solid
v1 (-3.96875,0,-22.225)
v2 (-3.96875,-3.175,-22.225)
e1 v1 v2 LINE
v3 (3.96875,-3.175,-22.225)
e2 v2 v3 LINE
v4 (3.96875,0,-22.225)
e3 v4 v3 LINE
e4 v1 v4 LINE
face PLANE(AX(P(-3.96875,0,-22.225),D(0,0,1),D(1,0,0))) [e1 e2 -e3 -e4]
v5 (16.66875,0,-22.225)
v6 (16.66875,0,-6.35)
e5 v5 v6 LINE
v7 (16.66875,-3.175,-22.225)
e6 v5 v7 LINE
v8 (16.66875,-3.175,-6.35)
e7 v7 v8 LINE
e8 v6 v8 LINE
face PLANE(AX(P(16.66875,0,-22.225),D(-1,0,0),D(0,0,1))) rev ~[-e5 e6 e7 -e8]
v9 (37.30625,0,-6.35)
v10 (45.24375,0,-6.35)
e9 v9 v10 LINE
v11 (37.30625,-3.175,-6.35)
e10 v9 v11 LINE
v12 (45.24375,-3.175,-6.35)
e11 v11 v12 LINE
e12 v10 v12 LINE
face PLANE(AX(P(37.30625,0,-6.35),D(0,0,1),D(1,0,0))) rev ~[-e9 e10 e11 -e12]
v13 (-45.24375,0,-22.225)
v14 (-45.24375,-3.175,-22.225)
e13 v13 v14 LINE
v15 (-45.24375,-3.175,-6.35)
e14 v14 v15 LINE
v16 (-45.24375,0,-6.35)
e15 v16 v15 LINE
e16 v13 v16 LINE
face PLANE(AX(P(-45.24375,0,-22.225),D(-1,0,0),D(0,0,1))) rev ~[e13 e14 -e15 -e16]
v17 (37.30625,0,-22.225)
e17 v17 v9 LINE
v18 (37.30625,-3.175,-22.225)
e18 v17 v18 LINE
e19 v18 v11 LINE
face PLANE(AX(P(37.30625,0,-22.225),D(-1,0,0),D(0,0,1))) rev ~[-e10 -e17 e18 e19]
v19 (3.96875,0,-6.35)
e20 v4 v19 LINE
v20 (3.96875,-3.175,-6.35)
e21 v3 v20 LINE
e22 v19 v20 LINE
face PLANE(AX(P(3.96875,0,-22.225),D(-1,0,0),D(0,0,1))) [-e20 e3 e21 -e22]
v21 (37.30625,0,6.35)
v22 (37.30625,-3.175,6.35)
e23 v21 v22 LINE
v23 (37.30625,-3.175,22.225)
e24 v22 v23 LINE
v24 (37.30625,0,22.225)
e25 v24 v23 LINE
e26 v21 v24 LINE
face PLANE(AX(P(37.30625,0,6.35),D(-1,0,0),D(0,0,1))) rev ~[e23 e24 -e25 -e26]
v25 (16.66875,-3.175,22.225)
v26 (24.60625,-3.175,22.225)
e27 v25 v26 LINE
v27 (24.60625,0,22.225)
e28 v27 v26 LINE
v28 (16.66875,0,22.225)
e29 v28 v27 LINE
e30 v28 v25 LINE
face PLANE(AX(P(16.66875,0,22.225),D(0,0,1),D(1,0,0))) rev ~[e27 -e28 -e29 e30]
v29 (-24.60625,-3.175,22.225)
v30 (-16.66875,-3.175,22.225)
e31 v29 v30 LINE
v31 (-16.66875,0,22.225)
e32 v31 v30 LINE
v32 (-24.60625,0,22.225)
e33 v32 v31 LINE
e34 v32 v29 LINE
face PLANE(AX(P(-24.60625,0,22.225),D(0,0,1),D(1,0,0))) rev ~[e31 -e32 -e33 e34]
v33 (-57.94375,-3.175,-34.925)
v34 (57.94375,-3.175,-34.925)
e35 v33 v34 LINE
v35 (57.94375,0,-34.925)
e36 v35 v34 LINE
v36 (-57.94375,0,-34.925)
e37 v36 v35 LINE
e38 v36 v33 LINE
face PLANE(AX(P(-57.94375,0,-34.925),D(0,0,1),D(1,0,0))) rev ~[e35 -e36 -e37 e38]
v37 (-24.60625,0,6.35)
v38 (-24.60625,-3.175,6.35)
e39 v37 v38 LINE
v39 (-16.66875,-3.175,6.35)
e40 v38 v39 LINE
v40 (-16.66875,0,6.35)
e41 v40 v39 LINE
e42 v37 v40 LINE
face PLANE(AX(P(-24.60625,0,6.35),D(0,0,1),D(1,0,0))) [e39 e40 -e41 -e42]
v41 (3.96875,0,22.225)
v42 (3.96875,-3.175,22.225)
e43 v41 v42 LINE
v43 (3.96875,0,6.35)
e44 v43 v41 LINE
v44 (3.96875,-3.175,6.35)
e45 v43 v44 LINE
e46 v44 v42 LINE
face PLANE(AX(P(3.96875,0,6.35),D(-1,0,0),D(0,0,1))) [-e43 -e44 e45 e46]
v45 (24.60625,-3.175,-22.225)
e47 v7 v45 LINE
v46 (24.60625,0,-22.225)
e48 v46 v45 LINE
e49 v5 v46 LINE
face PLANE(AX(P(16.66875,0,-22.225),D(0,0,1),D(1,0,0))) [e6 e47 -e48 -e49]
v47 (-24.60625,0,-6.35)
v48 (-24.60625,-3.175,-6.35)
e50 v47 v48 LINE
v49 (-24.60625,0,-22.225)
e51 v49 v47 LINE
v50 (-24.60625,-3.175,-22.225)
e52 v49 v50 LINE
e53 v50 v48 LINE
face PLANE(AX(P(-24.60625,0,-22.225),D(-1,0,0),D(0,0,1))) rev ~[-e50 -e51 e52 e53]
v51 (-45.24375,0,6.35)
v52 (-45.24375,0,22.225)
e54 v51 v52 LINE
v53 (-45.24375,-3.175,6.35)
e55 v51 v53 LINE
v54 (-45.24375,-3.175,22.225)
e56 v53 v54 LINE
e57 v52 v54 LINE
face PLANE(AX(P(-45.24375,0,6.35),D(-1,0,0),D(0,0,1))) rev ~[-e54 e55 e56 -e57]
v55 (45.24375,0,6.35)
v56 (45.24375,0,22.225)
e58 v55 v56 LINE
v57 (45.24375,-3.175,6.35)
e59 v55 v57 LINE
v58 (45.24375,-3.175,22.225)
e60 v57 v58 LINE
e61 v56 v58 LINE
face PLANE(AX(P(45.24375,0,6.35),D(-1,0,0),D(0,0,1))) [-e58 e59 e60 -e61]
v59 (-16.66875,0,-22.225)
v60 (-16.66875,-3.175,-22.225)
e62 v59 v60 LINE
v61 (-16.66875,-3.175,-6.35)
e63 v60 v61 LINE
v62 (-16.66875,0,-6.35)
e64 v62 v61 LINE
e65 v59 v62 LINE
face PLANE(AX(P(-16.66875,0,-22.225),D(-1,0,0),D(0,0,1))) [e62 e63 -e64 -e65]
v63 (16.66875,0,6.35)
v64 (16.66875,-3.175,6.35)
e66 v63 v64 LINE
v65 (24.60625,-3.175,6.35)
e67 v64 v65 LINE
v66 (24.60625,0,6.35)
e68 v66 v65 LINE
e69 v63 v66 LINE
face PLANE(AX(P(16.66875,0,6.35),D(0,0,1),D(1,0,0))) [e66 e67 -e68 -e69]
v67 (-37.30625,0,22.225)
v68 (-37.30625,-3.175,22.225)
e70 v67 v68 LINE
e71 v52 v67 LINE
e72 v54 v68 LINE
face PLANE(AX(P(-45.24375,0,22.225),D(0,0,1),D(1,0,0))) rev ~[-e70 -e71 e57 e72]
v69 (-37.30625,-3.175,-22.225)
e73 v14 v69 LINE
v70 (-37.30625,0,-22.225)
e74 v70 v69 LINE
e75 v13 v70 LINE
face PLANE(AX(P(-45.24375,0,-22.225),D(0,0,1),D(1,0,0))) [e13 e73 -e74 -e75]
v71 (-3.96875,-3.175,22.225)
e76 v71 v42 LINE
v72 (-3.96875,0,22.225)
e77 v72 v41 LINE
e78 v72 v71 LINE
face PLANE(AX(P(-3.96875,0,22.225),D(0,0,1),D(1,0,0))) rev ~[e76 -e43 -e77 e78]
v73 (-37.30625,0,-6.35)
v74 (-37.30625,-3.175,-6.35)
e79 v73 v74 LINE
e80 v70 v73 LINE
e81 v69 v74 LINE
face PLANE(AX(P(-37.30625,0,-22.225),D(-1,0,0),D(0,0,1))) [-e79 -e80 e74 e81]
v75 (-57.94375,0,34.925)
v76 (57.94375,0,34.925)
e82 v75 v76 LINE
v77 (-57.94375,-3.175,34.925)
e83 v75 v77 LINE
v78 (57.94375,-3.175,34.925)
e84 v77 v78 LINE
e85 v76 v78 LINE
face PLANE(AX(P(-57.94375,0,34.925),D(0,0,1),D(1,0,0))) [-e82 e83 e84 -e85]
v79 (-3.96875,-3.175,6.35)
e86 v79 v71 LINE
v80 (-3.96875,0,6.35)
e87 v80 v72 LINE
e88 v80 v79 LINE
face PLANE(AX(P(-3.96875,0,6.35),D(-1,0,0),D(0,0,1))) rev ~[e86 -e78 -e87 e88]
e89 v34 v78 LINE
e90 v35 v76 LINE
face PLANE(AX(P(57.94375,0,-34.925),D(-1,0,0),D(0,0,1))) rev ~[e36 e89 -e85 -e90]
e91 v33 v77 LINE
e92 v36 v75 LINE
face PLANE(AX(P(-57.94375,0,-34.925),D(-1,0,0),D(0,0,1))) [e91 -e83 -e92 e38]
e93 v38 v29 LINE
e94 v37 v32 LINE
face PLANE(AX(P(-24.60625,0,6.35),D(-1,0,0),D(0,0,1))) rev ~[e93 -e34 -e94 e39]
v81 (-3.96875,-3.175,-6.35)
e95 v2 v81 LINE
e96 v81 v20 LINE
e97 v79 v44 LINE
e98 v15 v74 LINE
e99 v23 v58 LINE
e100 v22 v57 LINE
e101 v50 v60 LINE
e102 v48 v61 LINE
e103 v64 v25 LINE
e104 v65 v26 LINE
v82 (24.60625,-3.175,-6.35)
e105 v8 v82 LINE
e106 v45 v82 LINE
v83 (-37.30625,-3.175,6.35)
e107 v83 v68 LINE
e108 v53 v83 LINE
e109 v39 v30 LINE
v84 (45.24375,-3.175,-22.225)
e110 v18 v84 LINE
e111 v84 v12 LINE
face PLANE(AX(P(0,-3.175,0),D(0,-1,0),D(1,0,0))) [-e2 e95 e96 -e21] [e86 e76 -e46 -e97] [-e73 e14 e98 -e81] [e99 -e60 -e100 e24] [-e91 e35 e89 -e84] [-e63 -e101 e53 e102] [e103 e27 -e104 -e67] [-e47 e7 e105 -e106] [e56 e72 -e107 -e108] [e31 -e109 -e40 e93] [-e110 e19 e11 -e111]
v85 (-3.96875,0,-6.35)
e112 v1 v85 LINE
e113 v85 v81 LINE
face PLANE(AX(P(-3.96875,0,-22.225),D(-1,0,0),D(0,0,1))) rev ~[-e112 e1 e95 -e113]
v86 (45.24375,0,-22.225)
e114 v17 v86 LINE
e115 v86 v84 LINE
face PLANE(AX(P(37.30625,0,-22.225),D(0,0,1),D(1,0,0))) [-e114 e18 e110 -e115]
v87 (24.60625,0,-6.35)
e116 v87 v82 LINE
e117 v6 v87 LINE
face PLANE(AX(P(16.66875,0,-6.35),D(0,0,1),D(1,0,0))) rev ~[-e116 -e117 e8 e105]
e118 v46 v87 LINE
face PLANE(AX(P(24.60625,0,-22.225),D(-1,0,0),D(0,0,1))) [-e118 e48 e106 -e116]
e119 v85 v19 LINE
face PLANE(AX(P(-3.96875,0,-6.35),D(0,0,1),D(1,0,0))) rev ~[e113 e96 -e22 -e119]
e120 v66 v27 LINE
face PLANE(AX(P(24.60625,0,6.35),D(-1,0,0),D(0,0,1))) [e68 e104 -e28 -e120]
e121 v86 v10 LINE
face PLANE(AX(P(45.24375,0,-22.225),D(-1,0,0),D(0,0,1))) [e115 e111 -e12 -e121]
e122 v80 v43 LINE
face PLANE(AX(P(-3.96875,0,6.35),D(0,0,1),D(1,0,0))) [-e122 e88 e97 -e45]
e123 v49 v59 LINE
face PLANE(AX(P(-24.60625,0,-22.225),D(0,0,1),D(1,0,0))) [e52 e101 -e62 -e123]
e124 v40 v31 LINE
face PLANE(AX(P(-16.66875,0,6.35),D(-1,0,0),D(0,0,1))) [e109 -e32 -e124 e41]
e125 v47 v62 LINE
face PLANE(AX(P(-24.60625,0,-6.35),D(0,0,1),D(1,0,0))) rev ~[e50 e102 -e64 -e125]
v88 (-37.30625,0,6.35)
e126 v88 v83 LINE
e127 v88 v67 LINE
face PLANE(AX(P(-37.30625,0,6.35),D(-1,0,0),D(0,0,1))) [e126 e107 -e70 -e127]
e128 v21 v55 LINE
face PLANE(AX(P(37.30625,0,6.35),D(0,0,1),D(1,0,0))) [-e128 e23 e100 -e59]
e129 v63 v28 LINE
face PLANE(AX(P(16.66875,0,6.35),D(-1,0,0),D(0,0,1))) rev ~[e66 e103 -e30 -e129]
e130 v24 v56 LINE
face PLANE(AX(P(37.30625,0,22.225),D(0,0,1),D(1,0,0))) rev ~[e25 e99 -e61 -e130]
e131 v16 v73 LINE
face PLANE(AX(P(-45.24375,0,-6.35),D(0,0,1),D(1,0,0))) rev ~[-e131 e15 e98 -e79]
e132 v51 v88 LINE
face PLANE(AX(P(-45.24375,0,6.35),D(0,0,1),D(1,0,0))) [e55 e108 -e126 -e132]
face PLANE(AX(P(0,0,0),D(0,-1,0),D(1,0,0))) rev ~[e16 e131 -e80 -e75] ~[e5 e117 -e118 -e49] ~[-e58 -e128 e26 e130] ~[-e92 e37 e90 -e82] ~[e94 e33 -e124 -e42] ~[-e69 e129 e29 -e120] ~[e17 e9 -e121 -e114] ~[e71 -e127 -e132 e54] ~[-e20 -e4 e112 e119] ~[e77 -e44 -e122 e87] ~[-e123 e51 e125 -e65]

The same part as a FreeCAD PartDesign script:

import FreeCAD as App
import Part
import Sketcher

V = App.Vector
Q = App.Units.Quantity


def add_polygon(sketch, points):
    """Adds a closed chain of lines whose ends are joined by coincident constraints."""
    first, n = sketch.GeometryCount, len(points)
    for a, b in zip(points, points[1:] + points[:1]):
        sketch.addGeometry(Part.LineSegment(App.Vector(*a, 0), App.Vector(*b, 0)), False)
    for i in range(n):
        sketch.addConstraint(Sketcher.Constraint("Coincident", first + i, 2, first + (i + 1) % n, 1))

doc = App.newDocument("Part")
body = doc.addObject("PartDesign::Body", "Body")

sketch1 = doc.addObject("Sketcher::SketchObject", "Sketch")
body.addObject(sketch1)
sketch1.AttachmentSupport = (doc.XZ_Plane, [""])
sketch1.MapMode = "FlatFace"
add_polygon(sketch1, [(-58, 35), (-58, -35), (58, -35), (58, 35)])
add_polygon(sketch1, [(-37, -22), (-45, -22), (-45, -6), (-37, -6)])
add_polygon(sketch1, [(-17, -22), (-25, -22), (-25, -6), (-17, -6)])
add_polygon(sketch1, [(4, -22), (-4, -22), (-4, -6), (4, -6)])
add_polygon(sketch1, [(25, -22), (17, -22), (17, -6), (25, -6)])
add_polygon(sketch1, [(45, -22), (37, -22), (37, -6), (45, -6)])
add_polygon(sketch1, [(-37, 6), (-45, 6), (-45, 22), (-37, 22)])
add_polygon(sketch1, [(-17, 6), (-25, 6), (-25, 22), (-17, 22)])
add_polygon(sketch1, [(4, 6), (-4, 6), (-4, 22), (4, 22)])
add_polygon(sketch1, [(25, 6), (17, 6), (17, 22), (25, 22)])
add_polygon(sketch1, [(45, 6), (37, 6), (37, 22), (45, 22)])
sketch1.addConstraint([
    Sketcher.Constraint("Vertical", 0),
    Sketcher.Constraint("Horizontal", 1),
    Sketcher.Constraint("Vertical", 2),
    Sketcher.Constraint("Horizontal", 3),
    Sketcher.Constraint("Horizontal", 4),
    Sketcher.Constraint("Vertical", 5),
    Sketcher.Constraint("Horizontal", 6),
    Sketcher.Constraint("Vertical", 7),
    Sketcher.Constraint("Horizontal", 8),
    Sketcher.Constraint("Vertical", 9),
    Sketcher.Constraint("Horizontal", 10),
    Sketcher.Constraint("Vertical", 11),
    Sketcher.Constraint("Horizontal", 12),
    Sketcher.Constraint("Vertical", 13),
    Sketcher.Constraint("Horizontal", 14),
    Sketcher.Constraint("Vertical", 15),
    Sketcher.Constraint("Horizontal", 16),
    Sketcher.Constraint("Vertical", 17),
    Sketcher.Constraint("Horizontal", 18),
    Sketcher.Constraint("Vertical", 19),
    Sketcher.Constraint("Horizontal", 20),
    Sketcher.Constraint("Vertical", 21),
    Sketcher.Constraint("Horizontal", 22),
    Sketcher.Constraint("Vertical", 23),
    Sketcher.Constraint("Horizontal", 24),
    Sketcher.Constraint("Vertical", 25),
    Sketcher.Constraint("Horizontal", 26),
    Sketcher.Constraint("Vertical", 27),
    Sketcher.Constraint("Horizontal", 28),
    Sketcher.Constraint("Vertical", 29),
    Sketcher.Constraint("Horizontal", 30),
    Sketcher.Constraint("Vertical", 31),
    Sketcher.Constraint("Horizontal", 32),
    Sketcher.Constraint("Vertical", 33),
    Sketcher.Constraint("Horizontal", 34),
    Sketcher.Constraint("Vertical", 35),
    Sketcher.Constraint("Horizontal", 36),
    Sketcher.Constraint("Vertical", 37),
    Sketcher.Constraint("Horizontal", 38),
    Sketcher.Constraint("Vertical", 39),
    Sketcher.Constraint("Horizontal", 40),
    Sketcher.Constraint("Vertical", 41),
    Sketcher.Constraint("Horizontal", 42),
    Sketcher.Constraint("Vertical", 43),
    Sketcher.Constraint("Symmetric", 0, 2, 2, 2, -1, 1),
    Sketcher.Constraint("Symmetric", 22, 2, 24, 2, -1, 1),
    Sketcher.Constraint("Symmetric", 20, 2, 26, 2, -1, 1),
    Sketcher.Constraint("Symmetric", 18, 2, 28, 2, -1, 1),
    Sketcher.Constraint("Symmetric", 16, 2, 30, 2, -1, 1),
    Sketcher.Constraint("Symmetric", 14, 2, 32, 2, -1, 1),
    Sketcher.Constraint("Symmetric", 12, 2, 34, 2, -1, 1),
    Sketcher.Constraint("Symmetric", 10, 2, 36, 2, -1, 1),
    Sketcher.Constraint("Symmetric", 8, 2, 38, 2, -1, 1),
    Sketcher.Constraint("Symmetric", 6, 2, 40, 2, -1, 1),
    Sketcher.Constraint("Symmetric", 4, 2, 42, 2, -1, 1),
    Sketcher.Constraint("Symmetric", 11, 2, 16, 2, -2),
    Sketcher.Constraint("Symmetric", 9, 2, 18, 2, -2),
    Sketcher.Constraint("Symmetric", 7, 2, 20, 2, -2),
    Sketcher.Constraint("Symmetric", 5, 2, 22, 2, -2),
    Sketcher.Constraint("Horizontal", 7, 2, 8, 2),
    Sketcher.Constraint("Horizontal", 6, 2, 9, 2),
    Sketcher.Constraint("Horizontal", 11, 2, 12, 2),
    Sketcher.Constraint("Horizontal", 10, 2, 13, 2),
    Sketcher.Constraint("Vertical", 13, 2, 32, 2),
    Sketcher.Constraint("Equal", 6, 8),
    Sketcher.Constraint("Equal", 10, 12),
    Sketcher.Constraint("DistanceY", 0, 2, 0, 1, Q("2.75 in")),
    Sketcher.Constraint("DistanceX", 0, 2, 4, 2, Q("0.5 in")),
    Sketcher.Constraint("DistanceY", 0, 2, 4, 2, Q("0.5 in")),
    Sketcher.Constraint("DistanceX", 7, 2, 8, 2, Q("0.5 in")),
    Sketcher.Constraint("DistanceX", 11, 2, 12, 2, Q("0.5 in")),
    Sketcher.Constraint("DistanceY", 5, 2, 24, 2, Q("0.5 in")),
    Sketcher.Constraint("DistanceX", 1, 1, 1, 2, Q("4.5625 in")),
])
pad1 = doc.addObject("PartDesign::Pad", "Pad")
body.addObject(pad1)
pad1.Profile = sketch1
pad1.Length = Q("0.125 in")

doc.recompute()
